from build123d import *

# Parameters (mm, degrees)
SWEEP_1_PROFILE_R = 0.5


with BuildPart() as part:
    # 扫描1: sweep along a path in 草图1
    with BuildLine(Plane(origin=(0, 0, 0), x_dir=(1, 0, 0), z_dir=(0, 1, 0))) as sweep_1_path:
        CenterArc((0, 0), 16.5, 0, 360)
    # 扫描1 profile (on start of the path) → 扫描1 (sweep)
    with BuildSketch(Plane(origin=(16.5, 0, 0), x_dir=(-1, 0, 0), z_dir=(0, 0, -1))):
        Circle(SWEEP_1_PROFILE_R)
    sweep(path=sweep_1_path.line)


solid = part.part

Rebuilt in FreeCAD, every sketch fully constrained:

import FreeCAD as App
import Part
import Sketcher
Q = App.Units.Quantity

doc = App.newDocument("Part")
params = doc.addObject("Spreadsheet::Sheet", "Params")
for row, (alias, value) in enumerate([
    ("sketch1_diameter", "1 mm"),
    ("sketch2_diameter", "33 mm"),
], start=1):
    params.set(f"A{row}", alias)
    params.set(f"B{row}", "=" + value)
    params.setAlias(f"B{row}", alias)

body = doc.addObject("PartDesign::Body", "Body")

sketch1 = body.newObject("Sketcher::SketchObject", "Sketch")
sketch1.AttachmentSupport = (doc.getObject("XY_Plane"), [""])
sketch1.MapMode = "FlatFace"
sketch1.addGeometry(Part.Circle(App.Vector(16.5, 0, 0), App.Vector(0, 0, 1), 0.5), False)
sketch1.addConstraint([
    Sketcher.Constraint("PointOnObject", 0, 3, -1),
    Sketcher.Constraint("Diameter", 0, Q("1 mm")),
    Sketcher.Constraint("DistanceX", -1, 1, 0, 3, Q("16.5 mm")),
])
sketch1.setExpression("Constraints[1]", "Params.sketch1_diameter")

sketch2 = body.newObject("Sketcher::SketchObject", "Sketch001")
sketch2.AttachmentSupport = (doc.getObject("XZ_Plane"), [""])
sketch2.MapMode = "FlatFace"
sketch2.addGeometry(Part.Circle(App.Vector(0, 0, 0), App.Vector(0, 0, 1), 16.5), False)
sketch2.addConstraint([
    Sketcher.Constraint("Coincident", 0, 3, -1, 1),
    Sketcher.Constraint("Diameter", 0, Q("33 mm")),
])
sketch2.setExpression("Constraints[1]", "Params.sketch2_diameter")
doc.recompute()

additivepipe = body.newObject("PartDesign::AdditivePipe", "AdditivePipe")
additivepipe.Profile = sketch1
additivepipe.Spine = (sketch2, ["Edge1"])

doc.recompute()
